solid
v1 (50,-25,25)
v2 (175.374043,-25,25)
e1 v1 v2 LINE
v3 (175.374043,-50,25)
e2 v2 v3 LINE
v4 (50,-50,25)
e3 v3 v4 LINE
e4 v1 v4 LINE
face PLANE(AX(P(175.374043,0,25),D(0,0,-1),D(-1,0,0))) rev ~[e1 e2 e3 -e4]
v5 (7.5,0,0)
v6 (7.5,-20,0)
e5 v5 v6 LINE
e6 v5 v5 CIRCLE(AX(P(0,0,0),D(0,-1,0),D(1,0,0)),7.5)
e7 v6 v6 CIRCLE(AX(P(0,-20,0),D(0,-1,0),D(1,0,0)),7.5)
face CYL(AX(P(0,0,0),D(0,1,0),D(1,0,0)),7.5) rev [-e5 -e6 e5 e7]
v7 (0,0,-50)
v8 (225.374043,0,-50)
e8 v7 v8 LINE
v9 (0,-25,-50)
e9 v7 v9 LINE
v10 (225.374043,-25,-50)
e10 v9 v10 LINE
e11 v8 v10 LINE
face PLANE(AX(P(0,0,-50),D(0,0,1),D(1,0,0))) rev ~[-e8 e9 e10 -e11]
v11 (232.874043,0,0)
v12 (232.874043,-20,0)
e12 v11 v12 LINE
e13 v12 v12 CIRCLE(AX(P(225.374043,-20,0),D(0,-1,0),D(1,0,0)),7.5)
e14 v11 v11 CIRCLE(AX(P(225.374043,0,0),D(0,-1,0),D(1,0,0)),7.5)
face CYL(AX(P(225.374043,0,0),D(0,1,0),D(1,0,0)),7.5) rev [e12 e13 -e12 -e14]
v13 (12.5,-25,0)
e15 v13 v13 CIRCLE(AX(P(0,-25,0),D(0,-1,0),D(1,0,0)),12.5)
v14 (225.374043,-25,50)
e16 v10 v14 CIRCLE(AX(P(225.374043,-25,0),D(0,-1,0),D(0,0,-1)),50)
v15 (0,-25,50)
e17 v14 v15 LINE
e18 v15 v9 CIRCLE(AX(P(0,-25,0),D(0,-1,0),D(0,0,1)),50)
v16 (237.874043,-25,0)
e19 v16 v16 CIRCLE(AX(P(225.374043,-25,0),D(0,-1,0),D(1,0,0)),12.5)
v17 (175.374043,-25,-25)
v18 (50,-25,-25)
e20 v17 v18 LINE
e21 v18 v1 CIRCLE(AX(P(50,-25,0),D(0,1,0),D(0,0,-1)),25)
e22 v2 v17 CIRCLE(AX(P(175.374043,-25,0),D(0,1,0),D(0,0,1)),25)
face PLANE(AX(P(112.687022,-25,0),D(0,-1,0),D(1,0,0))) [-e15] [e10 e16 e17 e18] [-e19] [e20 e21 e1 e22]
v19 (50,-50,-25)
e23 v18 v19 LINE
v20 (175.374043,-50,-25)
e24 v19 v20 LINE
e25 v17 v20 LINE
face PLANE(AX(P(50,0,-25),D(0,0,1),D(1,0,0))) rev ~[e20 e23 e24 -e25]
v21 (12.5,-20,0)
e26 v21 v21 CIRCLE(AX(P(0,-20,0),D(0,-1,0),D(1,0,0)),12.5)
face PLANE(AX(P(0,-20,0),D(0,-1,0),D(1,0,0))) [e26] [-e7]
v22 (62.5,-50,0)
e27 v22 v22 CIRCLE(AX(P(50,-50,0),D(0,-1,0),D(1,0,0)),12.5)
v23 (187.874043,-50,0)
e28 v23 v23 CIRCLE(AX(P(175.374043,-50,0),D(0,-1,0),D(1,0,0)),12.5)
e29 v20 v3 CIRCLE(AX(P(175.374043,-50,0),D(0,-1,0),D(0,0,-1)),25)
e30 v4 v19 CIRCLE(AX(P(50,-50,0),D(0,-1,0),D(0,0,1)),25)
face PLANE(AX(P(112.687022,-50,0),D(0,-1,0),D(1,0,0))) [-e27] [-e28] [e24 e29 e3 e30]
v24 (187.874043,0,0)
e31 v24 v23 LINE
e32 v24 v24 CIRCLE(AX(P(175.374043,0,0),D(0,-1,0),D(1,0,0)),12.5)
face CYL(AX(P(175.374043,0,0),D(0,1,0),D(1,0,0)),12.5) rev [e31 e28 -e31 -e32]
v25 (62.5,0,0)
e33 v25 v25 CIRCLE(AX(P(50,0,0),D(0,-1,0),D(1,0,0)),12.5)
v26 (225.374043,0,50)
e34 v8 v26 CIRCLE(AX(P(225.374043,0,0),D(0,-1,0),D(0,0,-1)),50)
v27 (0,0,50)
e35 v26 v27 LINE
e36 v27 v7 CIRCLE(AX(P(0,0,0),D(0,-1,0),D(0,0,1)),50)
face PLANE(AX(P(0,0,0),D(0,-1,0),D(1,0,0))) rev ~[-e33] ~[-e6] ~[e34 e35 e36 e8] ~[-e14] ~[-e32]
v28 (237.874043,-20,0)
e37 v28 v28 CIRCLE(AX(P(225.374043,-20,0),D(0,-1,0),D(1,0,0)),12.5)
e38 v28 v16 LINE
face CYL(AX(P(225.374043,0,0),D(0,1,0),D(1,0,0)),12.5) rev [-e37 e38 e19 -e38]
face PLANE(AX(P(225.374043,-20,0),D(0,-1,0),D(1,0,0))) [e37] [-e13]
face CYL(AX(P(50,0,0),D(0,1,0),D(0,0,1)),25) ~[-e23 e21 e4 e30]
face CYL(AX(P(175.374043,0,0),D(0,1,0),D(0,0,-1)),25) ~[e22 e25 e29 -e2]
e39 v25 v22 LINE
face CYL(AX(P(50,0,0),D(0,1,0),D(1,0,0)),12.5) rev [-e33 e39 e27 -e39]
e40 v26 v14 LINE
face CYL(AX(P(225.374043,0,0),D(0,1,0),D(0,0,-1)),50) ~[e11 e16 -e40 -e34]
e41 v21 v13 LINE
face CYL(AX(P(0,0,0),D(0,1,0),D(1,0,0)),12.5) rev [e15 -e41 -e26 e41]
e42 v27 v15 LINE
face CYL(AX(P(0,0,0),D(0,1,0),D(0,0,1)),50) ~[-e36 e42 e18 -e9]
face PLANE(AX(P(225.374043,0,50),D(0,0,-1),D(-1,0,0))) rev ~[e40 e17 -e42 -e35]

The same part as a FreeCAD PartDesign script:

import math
import FreeCAD as App
import Part
import Sketcher

V = App.Vector

doc = App.newDocument("Part")
body = doc.addObject("PartDesign::Body", "Body")

# Sketch on XZ plane
sketch1 = body.newObject("Sketcher::SketchObject", "Sketch")
sketch1.AttachmentSupport = (doc.getObject("XZ_Plane"), [""])
sketch1.MapMode = "FlatFace"
sketch1.addGeometry([
    Part.LineSegment(V(175, 25, 0), V(50, 25, 0)),  # 0
    Part.ArcOfCircle(Part.Circle(V(50, 0, 0), V(0, 0, 1), 25), math.radians(90), math.radians(270)),  # 1
    Part.LineSegment(V(50, -25, 0), V(175, -25, 0)),  # 2
    Part.ArcOfCircle(Part.Circle(V(175, 0, 0), V(0, 0, 1), 25), math.radians(-90), math.radians(90)),  # 3
    Part.Circle(V(50, 0, 0), V(0, 0, 1), 12),  # 4
    Part.Circle(V(175, 0, 0), V(0, 0, 1), 12),  # 5
], False)
sketch1.addConstraint([
    Sketcher.Constraint("Tangent", 0, 2, 1, 1),
    Sketcher.Constraint("Tangent", 1, 2, 2, 1),
    Sketcher.Constraint("Tangent", 2, 2, 3, 1),
    Sketcher.Constraint("Tangent", 3, 2, 0, 1),
    Sketcher.Constraint("Horizontal", 0),
    Sketcher.Constraint("Horizontal", 2),
    Sketcher.Constraint("Coincident", 4, 3, 1, 3),
    Sketcher.Constraint("Coincident", 5, 3, 3, 3),
    Sketcher.Constraint("Equal", 4, 5),
    Sketcher.Constraint("PointOnObject", 1, 3, -1),
    Sketcher.Constraint("Diameter", 4, 25.0),
    Sketcher.Constraint("Radius", 1, 25.0),
    Sketcher.Constraint("DistanceX", -1, 1, 1, 3, 50.0),
    Sketcher.Constraint("DistanceX", 0, 2, 0, 1, 125.374043),
])
pad1 = body.newObject("PartDesign::Pad", "Pad")
pad1.Profile = sketch1
pad1.Length = 50

# Sketch on XZ plane
sketch2 = body.newObject("Sketcher::SketchObject", "Sketch001")
sketch2.AttachmentSupport = (doc.getObject("XZ_Plane"), [""])
sketch2.MapMode = "FlatFace"
sketch2.addGeometry([
    Part.LineSegment(V(225, 50, 0), V(0, 50, 0)),  # 0
    Part.ArcOfCircle(Part.Circle(V(0, 0, 0), V(0, 0, 1), 50), math.radians(90), math.radians(270)),  # 1
    Part.LineSegment(V(0, -50, 0), V(225, -50, 0)),  # 2
    Part.ArcOfCircle(Part.Circle(V(225, 0, 0), V(0, 0, 1), 50), math.radians(-90), math.radians(90)),  # 3
    Part.Circle(V(0, 0, 0), V(0, 0, 1), 12),  # 4
    Part.LineSegment(V(175, -25, 0), V(50, -25, 0)),  # 5
    Part.ArcOfCircle(Part.Circle(V(50, 0, 0), V(0, 0, 1), 25), math.radians(90), math.radians(270)),  # 6
    Part.LineSegment(V(50, 25, 0), V(175, 25, 0)),  # 7
    Part.ArcOfCircle(Part.Circle(V(175, 0, 0), V(0, 0, 1), 25), math.radians(-90), math.radians(90)),  # 8
    Part.Circle(V(225, 0, 0), V(0, 0, 1), 12),  # 9
], False)
sketch2.addConstraint([
    Sketcher.Constraint("Tangent", 0, 2, 1, 1),
    Sketcher.Constraint("Tangent", 1, 2, 2, 1),
    Sketcher.Constraint("Tangent", 2, 2, 3, 1),
    Sketcher.Constraint("Tangent", 3, 2, 0, 1),
    Sketcher.Constraint("Tangent", 5, 2, 6, 2),
    Sketcher.Constraint("Tangent", 6, 1, 7, 1),
    Sketcher.Constraint("Tangent", 7, 2, 8, 2),
    Sketcher.Constraint("Tangent", 8, 1, 5, 1),
    Sketcher.Constraint("Horizontal", 0),
    Sketcher.Constraint("Horizontal", 2),
    Sketcher.Constraint("Horizontal", 5),
    Sketcher.Constraint("Horizontal", 7),
    Sketcher.Constraint("Coincident", 1, 3, -1, 1),
    Sketcher.Constraint("Coincident", 4, 3, -1, 1),
    Sketcher.Constraint("Coincident", 9, 3, 3, 3),
    Sketcher.Constraint("Equal", 4, 9),
    Sketcher.Constraint("PointOnObject", 6, 3, -1),
    Sketcher.Constraint("Diameter", 4, 25.0),
    Sketcher.Constraint("Radius", 1, 50.0),
    Sketcher.Constraint("Radius", 6, 25.0),
    Sketcher.Constraint("DistanceX", -1, 1, 6, 3, 50.0),
    Sketcher.Constraint("DistanceX", 8, 3, 3, 3, 50.0),
    Sketcher.Constraint("DistanceX", 0, 2, 0, 1, 225.374043),
])
pad2 = body.newObject("PartDesign::Pad", "Pad001")
pad2.Profile = sketch2
pad2.Length = 25

# Sketch on XZ plane
sketch3 = body.newObject("Sketcher::SketchObject", "Sketch002")
sketch3.AttachmentSupport = (doc.getObject("XZ_Plane"), [""])
sketch3.MapMode = "FlatFace"
sketch3.addGeometry([
    Part.Circle(V(0, 0, 0), V(0, 0, 1), 12),
    Part.Circle(V(0, 0, 0), V(0, 0, 1), 8),
    Part.Circle(V(225, 0, 0), V(0, 0, 1), 12),
    Part.Circle(V(225, 0, 0), V(0, 0, 1), 8),
], False)
sketch3.addConstraint([
    Sketcher.Constraint("Coincident", 0, 3, -1, 1),
    Sketcher.Constraint("Coincident", 1, 3, -1, 1),
    Sketcher.Constraint("Coincident", 3, 3, 2, 3),
    Sketcher.Constraint("Equal", 0, 2),
    Sketcher.Constraint("Equal", 1, 3),
    Sketcher.Constraint("PointOnObject", 2, 3, -1),
    Sketcher.Constraint("Diameter", 0, 25.0),
    Sketcher.Constraint("Diameter", 1, 15.0),
    Sketcher.Constraint("DistanceX", -1, 1, 2, 3, 225.374043),
])
pad3 = body.newObject("PartDesign::Pad", "Pad002")
pad3.Profile = sketch3
pad3.Length = 20

doc.recompute()
